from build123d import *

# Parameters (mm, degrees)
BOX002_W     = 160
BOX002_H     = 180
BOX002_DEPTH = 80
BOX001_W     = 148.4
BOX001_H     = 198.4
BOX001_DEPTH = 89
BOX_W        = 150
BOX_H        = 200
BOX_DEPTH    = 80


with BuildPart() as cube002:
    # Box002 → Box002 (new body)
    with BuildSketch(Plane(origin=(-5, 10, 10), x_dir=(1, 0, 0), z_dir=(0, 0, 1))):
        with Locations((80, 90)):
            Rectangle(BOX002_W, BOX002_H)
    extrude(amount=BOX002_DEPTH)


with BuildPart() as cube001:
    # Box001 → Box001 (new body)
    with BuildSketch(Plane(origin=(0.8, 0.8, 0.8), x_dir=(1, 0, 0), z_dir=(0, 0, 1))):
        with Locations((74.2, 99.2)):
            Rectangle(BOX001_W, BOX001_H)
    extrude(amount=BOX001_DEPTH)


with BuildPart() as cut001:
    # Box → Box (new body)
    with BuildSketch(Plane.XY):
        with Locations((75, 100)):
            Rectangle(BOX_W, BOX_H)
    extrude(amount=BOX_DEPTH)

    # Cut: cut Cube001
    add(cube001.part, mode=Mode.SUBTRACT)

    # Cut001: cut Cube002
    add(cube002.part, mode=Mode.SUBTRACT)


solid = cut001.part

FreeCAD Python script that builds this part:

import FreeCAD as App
import Part
import Sketcher


def add_polygon(sketch, points):
    """Adds a closed chain of lines whose ends are joined by coincident constraints."""
    first, n = sketch.GeometryCount, len(points)
    for a, b in zip(points, points[1:] + points[:1]):
        sketch.addGeometry(Part.LineSegment(App.Vector(*a, 0), App.Vector(*b, 0)), False)
    for i in range(n):
        sketch.addConstraint(Sketcher.Constraint("Coincident", first + i, 2, first + (i + 1) % n, 1))

doc = App.newDocument("Part")
body = doc.addObject("PartDesign::Body", "Body")

# Sketch on XY plane
sketch1 = body.newObject("Sketcher::SketchObject", "Sketch")
sketch1.AttachmentSupport = (doc.getObject("XY_Plane"), [""])
sketch1.MapMode = "FlatFace"
sketch1.AttachmentOffset = App.Placement(App.Vector(0, 0, 10), App.Rotation())
add_polygon(sketch1, [(-5, 190), (-5, 10), (155, 10), (155, 190)])  # lines 0-3
sketch1.addConstraint(Sketcher.Constraint("Vertical", 0))
sketch1.addConstraint(Sketcher.Constraint("Horizontal", 1))
sketch1.addConstraint(Sketcher.Constraint("Vertical", 2))
sketch1.addConstraint(Sketcher.Constraint("Horizontal", 3))
sketch1.addConstraint(Sketcher.Constraint("DistanceX", 1, 1, 1, 2, 160.0))
sketch1.addConstraint(Sketcher.Constraint("DistanceY", 0, 2, 0, 1, 180.0))
sketch1.addConstraint(Sketcher.Constraint("DistanceX", 0, 2, -1, 1, 5.0))
sketch1.addConstraint(Sketcher.Constraint("DistanceY", -1, 1, 0, 2, 10.0))
pad1 = body.newObject("PartDesign::Pad", "Pad")
pad1.Profile = sketch1
pad1.Length = 80
body2 = doc.addObject("PartDesign::Body", "Body001")

# Sketch on XY plane
sketch2 = body2.newObject("Sketcher::SketchObject", "Sketch001")
sketch2.AttachmentSupport = (doc.getObject("XY_Plane001"), [""])
sketch2.MapMode = "FlatFace"
sketch2.AttachmentOffset = App.Placement(App.Vector(0, 0, 0.8), App.Rotation())
add_polygon(sketch2, [(1, 199), (1, 1), (149, 1), (149, 199)])  # lines 0-3
sketch2.addConstraint(Sketcher.Constraint("Vertical", 0))
sketch2.addConstraint(Sketcher.Constraint("Horizontal", 1))
sketch2.addConstraint(Sketcher.Constraint("Vertical", 2))
sketch2.addConstraint(Sketcher.Constraint("Horizontal", 3))
sketch2.addConstraint(Sketcher.Constraint("DistanceX", 1, 1, 1, 2, 148.4))
sketch2.addConstraint(Sketcher.Constraint("DistanceY", 0, 2, 0, 1, 198.4))
sketch2.addConstraint(Sketcher.Constraint("DistanceX", -1, 1, 0, 2, 0.8))
sketch2.addConstraint(Sketcher.Constraint("DistanceY", -1, 1, 0, 2, 0.8))
pad2 = body2.newObject("PartDesign::Pad", "Pad001")
pad2.Profile = sketch2
pad2.Length = 89
body3 = doc.addObject("PartDesign::Body", "Body002")

# Sketch on XY plane
sketch3 = body3.newObject("Sketcher::SketchObject", "Sketch002")
sketch3.AttachmentSupport = (doc.getObject("XY_Plane002"), [""])
sketch3.MapMode = "FlatFace"
add_polygon(sketch3, [(0, 200), (0, 0), (150, 0), (150, 200)])  # lines 0-3
sketch3.addConstraint(Sketcher.Constraint("Vertical", 0))
sketch3.addConstraint(Sketcher.Constraint("Horizontal", 1))
sketch3.addConstraint(Sketcher.Constraint("Vertical", 2))
sketch3.addConstraint(Sketcher.Constraint("Horizontal", 3))
sketch3.addConstraint(Sketcher.Constraint("Coincident", 0, 2, -1, 1))
sketch3.addConstraint(Sketcher.Constraint("DistanceX", 1, 1, 1, 2, 150.0))
sketch3.addConstraint(Sketcher.Constraint("DistanceY", 0, 2, 0, 1, 200.0))
pad3 = body3.newObject("PartDesign::Pad", "Pad002")
pad3.Profile = sketch3
pad3.Length = 80
doc.recompute()

boolean = body3.newObject("PartDesign::Boolean", "Boolean")
boolean.Type = "Cut"
boolean.addObjects([body2])
doc.recompute()

boolean2 = body3.newObject("PartDesign::Boolean", "Boolean001")
boolean2.Type = "Cut"
boolean2.addObjects([body])

doc.recompute()
